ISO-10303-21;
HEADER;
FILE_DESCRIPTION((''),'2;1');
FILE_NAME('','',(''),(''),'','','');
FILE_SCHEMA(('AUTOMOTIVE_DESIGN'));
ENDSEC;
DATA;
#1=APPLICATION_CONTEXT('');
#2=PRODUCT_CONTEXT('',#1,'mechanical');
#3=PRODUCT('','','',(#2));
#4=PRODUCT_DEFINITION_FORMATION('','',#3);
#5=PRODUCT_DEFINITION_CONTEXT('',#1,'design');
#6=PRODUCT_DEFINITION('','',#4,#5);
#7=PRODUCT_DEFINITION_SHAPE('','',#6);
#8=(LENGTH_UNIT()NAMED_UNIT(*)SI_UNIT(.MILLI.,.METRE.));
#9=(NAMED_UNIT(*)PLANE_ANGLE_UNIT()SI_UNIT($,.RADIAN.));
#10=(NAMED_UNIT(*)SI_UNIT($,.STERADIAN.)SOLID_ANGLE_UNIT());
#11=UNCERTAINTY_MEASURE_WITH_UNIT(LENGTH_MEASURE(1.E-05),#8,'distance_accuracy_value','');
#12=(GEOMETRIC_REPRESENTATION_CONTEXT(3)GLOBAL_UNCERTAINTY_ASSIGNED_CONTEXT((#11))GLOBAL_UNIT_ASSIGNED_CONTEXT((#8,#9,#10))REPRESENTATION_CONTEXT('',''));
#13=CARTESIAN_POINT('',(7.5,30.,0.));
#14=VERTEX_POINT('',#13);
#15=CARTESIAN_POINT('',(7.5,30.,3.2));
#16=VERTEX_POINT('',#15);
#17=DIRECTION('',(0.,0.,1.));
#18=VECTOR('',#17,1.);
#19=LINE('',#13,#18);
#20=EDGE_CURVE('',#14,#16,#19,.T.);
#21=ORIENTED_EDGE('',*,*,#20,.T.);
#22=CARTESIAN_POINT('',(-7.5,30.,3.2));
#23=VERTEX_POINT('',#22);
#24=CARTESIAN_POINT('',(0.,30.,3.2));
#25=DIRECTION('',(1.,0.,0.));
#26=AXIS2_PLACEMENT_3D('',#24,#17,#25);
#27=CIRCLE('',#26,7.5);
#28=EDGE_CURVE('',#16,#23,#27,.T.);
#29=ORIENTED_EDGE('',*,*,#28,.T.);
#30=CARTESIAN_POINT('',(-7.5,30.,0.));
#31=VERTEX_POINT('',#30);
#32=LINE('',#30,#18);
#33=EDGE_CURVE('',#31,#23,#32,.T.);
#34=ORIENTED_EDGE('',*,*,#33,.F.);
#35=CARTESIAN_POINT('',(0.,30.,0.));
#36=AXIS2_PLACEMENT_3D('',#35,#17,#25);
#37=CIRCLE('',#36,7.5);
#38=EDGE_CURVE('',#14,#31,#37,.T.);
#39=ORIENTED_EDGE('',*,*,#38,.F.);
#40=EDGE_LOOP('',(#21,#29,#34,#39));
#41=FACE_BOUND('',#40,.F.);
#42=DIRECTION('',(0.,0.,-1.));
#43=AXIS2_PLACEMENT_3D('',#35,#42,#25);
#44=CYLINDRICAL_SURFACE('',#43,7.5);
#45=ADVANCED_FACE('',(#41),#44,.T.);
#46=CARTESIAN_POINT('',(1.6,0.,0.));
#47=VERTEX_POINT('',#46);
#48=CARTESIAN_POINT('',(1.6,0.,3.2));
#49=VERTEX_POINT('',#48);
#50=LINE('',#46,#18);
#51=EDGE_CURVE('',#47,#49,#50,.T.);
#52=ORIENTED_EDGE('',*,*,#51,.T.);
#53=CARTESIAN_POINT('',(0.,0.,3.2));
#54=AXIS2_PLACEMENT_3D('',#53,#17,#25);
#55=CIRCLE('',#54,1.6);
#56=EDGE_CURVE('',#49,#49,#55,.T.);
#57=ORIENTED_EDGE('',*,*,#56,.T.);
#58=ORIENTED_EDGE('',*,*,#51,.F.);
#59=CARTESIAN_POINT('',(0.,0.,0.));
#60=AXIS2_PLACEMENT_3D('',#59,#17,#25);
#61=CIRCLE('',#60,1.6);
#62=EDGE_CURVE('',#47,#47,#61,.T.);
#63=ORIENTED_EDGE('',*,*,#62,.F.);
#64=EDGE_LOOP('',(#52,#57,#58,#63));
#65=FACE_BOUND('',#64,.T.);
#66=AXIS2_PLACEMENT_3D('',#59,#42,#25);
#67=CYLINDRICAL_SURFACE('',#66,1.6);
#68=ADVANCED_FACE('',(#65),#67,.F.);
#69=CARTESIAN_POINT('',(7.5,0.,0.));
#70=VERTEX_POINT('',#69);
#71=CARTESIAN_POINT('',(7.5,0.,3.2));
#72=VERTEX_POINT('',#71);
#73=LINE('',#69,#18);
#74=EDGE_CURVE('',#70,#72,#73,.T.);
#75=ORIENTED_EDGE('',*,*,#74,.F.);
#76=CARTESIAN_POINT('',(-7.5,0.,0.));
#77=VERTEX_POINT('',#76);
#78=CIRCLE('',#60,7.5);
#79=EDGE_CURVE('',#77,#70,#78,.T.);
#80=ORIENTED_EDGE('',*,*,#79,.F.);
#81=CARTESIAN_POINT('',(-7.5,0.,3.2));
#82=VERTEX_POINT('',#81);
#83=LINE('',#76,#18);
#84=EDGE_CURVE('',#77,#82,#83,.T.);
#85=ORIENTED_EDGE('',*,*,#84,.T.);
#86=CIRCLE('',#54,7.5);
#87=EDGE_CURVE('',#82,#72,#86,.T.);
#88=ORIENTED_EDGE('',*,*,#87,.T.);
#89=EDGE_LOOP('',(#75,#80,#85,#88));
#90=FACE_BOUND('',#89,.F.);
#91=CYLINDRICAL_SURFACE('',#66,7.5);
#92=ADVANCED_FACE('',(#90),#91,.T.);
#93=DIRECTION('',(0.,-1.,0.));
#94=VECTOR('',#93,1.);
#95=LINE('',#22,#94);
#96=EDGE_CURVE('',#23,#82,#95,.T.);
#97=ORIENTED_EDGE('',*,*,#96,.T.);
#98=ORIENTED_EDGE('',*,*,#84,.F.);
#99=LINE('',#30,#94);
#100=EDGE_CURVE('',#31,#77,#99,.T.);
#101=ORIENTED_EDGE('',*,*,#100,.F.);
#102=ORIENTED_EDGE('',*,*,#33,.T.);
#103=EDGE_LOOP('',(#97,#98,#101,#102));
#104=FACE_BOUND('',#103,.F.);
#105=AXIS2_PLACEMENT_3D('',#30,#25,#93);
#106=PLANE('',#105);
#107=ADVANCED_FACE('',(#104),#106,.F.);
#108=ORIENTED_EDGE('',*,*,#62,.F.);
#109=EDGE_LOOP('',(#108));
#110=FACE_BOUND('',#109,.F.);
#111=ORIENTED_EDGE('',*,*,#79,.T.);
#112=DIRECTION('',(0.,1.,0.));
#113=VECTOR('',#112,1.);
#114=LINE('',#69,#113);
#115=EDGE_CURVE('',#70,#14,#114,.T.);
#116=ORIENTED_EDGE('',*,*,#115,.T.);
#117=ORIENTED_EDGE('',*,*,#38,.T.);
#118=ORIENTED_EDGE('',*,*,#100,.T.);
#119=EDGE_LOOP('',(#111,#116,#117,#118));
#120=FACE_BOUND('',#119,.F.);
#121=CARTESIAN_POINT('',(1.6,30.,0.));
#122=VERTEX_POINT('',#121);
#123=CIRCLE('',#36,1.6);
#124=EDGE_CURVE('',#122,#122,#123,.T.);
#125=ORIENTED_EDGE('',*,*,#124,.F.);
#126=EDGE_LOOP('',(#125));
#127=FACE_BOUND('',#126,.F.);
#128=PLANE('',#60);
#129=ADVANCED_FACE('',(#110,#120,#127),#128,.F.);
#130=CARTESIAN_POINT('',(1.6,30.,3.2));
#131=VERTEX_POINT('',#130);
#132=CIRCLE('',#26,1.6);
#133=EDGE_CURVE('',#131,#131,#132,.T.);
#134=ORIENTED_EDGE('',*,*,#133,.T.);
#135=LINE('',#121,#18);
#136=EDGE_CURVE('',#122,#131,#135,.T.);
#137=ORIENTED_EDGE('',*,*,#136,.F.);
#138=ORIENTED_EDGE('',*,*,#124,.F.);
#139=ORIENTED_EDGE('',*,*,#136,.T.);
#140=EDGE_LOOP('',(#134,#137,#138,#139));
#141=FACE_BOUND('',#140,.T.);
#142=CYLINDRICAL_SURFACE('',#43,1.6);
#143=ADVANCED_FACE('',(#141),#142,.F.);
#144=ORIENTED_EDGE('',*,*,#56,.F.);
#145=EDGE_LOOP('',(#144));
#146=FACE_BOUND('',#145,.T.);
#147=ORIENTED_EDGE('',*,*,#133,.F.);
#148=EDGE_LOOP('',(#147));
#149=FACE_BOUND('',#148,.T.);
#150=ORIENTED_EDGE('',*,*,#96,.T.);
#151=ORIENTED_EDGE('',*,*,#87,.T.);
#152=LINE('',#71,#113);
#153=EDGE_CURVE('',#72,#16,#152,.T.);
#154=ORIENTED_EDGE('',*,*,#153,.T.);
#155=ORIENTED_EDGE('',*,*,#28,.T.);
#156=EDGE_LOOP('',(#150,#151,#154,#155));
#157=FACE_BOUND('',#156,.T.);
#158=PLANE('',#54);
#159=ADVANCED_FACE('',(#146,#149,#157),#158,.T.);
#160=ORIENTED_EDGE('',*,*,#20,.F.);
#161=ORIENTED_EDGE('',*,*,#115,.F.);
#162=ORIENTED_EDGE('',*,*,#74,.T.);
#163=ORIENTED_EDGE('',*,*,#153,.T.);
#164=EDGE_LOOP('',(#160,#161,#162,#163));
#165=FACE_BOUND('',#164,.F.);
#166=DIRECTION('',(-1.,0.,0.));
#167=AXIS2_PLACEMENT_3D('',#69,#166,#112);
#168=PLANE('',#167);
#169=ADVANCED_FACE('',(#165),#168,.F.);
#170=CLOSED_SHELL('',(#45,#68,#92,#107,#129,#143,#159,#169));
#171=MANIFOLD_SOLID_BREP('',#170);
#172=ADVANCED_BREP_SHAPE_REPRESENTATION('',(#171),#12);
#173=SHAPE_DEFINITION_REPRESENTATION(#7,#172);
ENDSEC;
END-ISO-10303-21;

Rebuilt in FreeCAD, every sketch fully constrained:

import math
import FreeCAD as App
import Part
import Sketcher

V = App.Vector
Q = App.Units.Quantity

doc = App.newDocument("Part")
params = doc.addObject("Spreadsheet::Sheet", "Params")
for row, (alias, value) in enumerate([
    ("sketch1_diameter", "3.2 mm"),
    ("sketch1_radius", "7.5 mm"),
    ("sketch1_height", "30 mm"),
    ("pad1_length", "3.2 mm"),
], start=1):
    params.set(f"A{row}", alias)
    params.set(f"B{row}", "=" + value)
    params.setAlias(f"B{row}", alias)

body = doc.addObject("PartDesign::Body", "Body")

sketch1 = body.newObject("Sketcher::SketchObject", "Sketch")
sketch1.AttachmentSupport = (doc.getObject("XY_Plane"), [""])
sketch1.MapMode = "FlatFace"
sketch1.addGeometry(Part.ArcOfCircle(Part.Circle(V(0, 0, 0), V(0, 0, 1), 7.5), math.radians(180), math.radians(360)), False)
sketch1.addGeometry(Part.LineSegment(V(7.5, 0, 0), V(7.5, 30, 0)), False)
sketch1.addGeometry(Part.ArcOfCircle(Part.Circle(V(0, 30, 0), V(0, 0, 1), 7.5), math.radians(0), math.radians(180)), False)
sketch1.addGeometry(Part.LineSegment(V(-7.5, 30, 0), V(-7.5, 0, 0)), False)
sketch1.addGeometry(Part.Circle(V(0, 0, 0), V(0, 0, 1), 1.6), False)
sketch1.addGeometry(Part.Circle(V(0, 30, 0), V(0, 0, 1), 1.6), False)
sketch1.addConstraint(Sketcher.Constraint("Tangent", 0, 2, 1, 1))
sketch1.addConstraint(Sketcher.Constraint("Tangent", 1, 2, 2, 1))
sketch1.addConstraint(Sketcher.Constraint("Tangent", 2, 2, 3, 1))
sketch1.addConstraint(Sketcher.Constraint("Tangent", 3, 2, 0, 1))
sketch1.addConstraint(Sketcher.Constraint("Vertical", 1))
sketch1.addConstraint(Sketcher.Constraint("Vertical", 3))
sketch1.addConstraint(Sketcher.Constraint("Coincident", 0, 3, -1, 1))
sketch1.addConstraint(Sketcher.Constraint("Coincident", 4, 3, -1, 1))
sketch1.addConstraint(Sketcher.Constraint("Coincident", 5, 3, 2, 3))
sketch1.addConstraint(Sketcher.Constraint("Equal", 4, 5))
sketch1.addConstraint(Sketcher.Constraint("Diameter", 4, Q("3.2 mm")))
sketch1.addConstraint(Sketcher.Constraint("Radius", 0, Q("7.5 mm")))
sketch1.addConstraint(Sketcher.Constraint("DistanceY", 1, 1, 1, 2, Q("30 mm")))
sketch1.setExpression("Constraints[10]", "Params.sketch1_diameter")
sketch1.setExpression("Constraints[11]", "Params.sketch1_radius")
sketch1.setExpression("Constraints[12]", "Params.sketch1_height")
pad1 = body.newObject("PartDesign::Pad", "Pad")
pad1.Profile = sketch1
pad1.setExpression("Length", "Params.pad1_length")

doc.recompute()
